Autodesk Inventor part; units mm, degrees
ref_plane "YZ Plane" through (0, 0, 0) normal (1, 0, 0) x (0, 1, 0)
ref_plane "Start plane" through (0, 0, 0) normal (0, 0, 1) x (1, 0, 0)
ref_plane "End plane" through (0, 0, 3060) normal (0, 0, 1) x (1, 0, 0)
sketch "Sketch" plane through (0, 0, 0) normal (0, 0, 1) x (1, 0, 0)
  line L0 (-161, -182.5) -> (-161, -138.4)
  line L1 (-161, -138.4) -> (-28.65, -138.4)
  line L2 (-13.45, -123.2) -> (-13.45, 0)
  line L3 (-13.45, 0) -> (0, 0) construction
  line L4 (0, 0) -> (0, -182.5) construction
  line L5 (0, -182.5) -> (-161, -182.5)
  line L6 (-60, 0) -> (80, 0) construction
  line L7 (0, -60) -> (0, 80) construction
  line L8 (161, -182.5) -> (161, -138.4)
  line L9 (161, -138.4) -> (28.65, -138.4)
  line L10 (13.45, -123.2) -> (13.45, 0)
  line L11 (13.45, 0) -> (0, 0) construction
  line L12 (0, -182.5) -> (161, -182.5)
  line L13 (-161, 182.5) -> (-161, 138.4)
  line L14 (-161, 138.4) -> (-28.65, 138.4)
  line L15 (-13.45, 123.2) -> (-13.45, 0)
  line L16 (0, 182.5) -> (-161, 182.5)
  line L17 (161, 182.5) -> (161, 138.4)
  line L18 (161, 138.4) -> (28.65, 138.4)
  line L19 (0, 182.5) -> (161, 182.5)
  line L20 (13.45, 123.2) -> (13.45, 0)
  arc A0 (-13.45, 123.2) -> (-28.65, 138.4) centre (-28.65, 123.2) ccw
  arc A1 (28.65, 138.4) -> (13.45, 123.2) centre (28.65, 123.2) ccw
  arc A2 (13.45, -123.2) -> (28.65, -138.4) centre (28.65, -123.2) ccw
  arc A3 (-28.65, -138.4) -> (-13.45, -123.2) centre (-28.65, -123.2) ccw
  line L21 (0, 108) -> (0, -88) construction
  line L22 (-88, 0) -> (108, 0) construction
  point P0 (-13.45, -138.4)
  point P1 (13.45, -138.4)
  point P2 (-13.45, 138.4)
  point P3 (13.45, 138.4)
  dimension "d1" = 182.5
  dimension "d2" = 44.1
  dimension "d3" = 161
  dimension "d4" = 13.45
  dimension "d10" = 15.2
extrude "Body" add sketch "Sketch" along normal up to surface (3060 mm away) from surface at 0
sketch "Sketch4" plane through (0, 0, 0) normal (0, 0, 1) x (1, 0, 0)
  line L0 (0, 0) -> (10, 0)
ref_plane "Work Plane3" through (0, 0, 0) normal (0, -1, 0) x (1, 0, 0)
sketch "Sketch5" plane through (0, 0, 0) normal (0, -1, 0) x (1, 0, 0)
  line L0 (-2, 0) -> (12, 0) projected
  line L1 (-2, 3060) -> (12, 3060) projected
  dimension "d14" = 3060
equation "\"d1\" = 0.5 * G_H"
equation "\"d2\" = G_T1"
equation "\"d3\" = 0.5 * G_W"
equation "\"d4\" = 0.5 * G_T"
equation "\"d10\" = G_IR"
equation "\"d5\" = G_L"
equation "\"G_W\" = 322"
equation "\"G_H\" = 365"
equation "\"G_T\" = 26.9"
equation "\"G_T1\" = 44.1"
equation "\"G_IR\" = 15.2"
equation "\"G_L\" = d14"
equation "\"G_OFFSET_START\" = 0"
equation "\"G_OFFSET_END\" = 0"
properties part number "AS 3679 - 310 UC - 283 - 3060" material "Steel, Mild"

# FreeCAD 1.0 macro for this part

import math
import FreeCAD as App
import Part
import Sketcher
from FreeCAD import Vector

doc = App.newDocument("Part")
params = doc.addObject("Spreadsheet::Sheet", "Params")
for row, (alias, value) in enumerate([
    ("sketch1_radius", "15.2 mm"),
    ("sketch1_height", "44.1 mm"),
    ("pad1_length", "3060 mm"),
], start=1):
    params.set(f"A{row}", alias)
    params.set(f"B{row}", "=" + value)
    params.setAlias(f"B{row}", alias)

body = doc.addObject("PartDesign::Body", "Body")

# Sketch on XY plane
sketch1 = doc.addObject("Sketcher::SketchObject", "Sketch")
body.addObject(sketch1)
sketch1.AttachmentSupport = (doc.XY_Plane, [""])
sketch1.MapMode = "FlatFace"
sketch1.addGeometry([
    Part.LineSegment(Vector(-161, -138.4, 0), Vector(-161, -182.5, 0)),  # 0
    Part.LineSegment(Vector(-161, -182.5, 0), Vector(161, -182.5, 0)),  # 1
    Part.LineSegment(Vector(161, -182.5, 0), Vector(161, -138.4, 0)),  # 2
    Part.LineSegment(Vector(161, -138.4, 0), Vector(28.65, -138.4, 0)),  # 3
    Part.ArcOfCircle(Part.Circle(Vector(28.65, -123.2, 0), Vector(0, 0, 1), 15.2), math.radians(180), math.radians(270)),  # 4
    Part.LineSegment(Vector(13.45, -123.2, 0), Vector(13.45, 123.2, 0)),  # 5
    Part.ArcOfCircle(Part.Circle(Vector(28.65, 123.2, 0), Vector(0, 0, 1), 15.2), math.radians(90), math.radians(180)),  # 6
    Part.LineSegment(Vector(28.65, 138.4, 0), Vector(161, 138.4, 0)),  # 7
    Part.LineSegment(Vector(161, 138.4, 0), Vector(161, 182.5, 0)),  # 8
    Part.LineSegment(Vector(161, 182.5, 0), Vector(-161, 182.5, 0)),  # 9
    Part.LineSegment(Vector(-161, 182.5, 0), Vector(-161, 138.4, 0)),  # 10
    Part.LineSegment(Vector(-161, 138.4, 0), Vector(-28.65, 138.4, 0)),  # 11
    Part.ArcOfCircle(Part.Circle(Vector(-28.65, 123.2, 0), Vector(0, 0, 1), 15.2), math.radians(0), math.radians(90)),  # 12
    Part.LineSegment(Vector(-13.45, 123.2, 0), Vector(-13.45, -123.2, 0)),  # 13
    Part.ArcOfCircle(Part.Circle(Vector(-28.65, -123.2, 0), Vector(0, 0, 1), 15.2), math.radians(-90), math.radians(0)),  # 14
    Part.LineSegment(Vector(-28.65, -138.4, 0), Vector(-161, -138.4, 0)),  # 15
], False)
sketch1.addConstraint([
    Sketcher.Constraint("Coincident", 0, 2, 1, 1),
    Sketcher.Constraint("Coincident", 1, 2, 2, 1),
    Sketcher.Constraint("Coincident", 2, 2, 3, 1),
    Sketcher.Constraint("Tangent", 3, 2, 4, 2),
    Sketcher.Constraint("Tangent", 4, 1, 5, 1),
    Sketcher.Constraint("Tangent", 5, 2, 6, 2),
    Sketcher.Constraint("Tangent", 6, 1, 7, 1),
    Sketcher.Constraint("Coincident", 7, 2, 8, 1),
    Sketcher.Constraint("Coincident", 8, 2, 9, 1),
    Sketcher.Constraint("Coincident", 9, 2, 10, 1),
    Sketcher.Constraint("Coincident", 10, 2, 11, 1),
    Sketcher.Constraint("Tangent", 11, 2, 12, 2),
    Sketcher.Constraint("Tangent", 12, 1, 13, 1),
    Sketcher.Constraint("Tangent", 13, 2, 14, 2),
    Sketcher.Constraint("Tangent", 14, 1, 15, 1),
    Sketcher.Constraint("Coincident", 15, 2, 0, 1),
    Sketcher.Constraint("Vertical", 0),
    Sketcher.Constraint("Horizontal", 1),
    Sketcher.Constraint("Vertical", 2),
    Sketcher.Constraint("Horizontal", 3),
    Sketcher.Constraint("Vertical", 5),
    Sketcher.Constraint("Horizontal", 7),
    Sketcher.Constraint("Vertical", 8),
    Sketcher.Constraint("Horizontal", 9),
    Sketcher.Constraint("Vertical", 10),
    Sketcher.Constraint("Horizontal", 11),
    Sketcher.Constraint("Vertical", 13),
    Sketcher.Constraint("Horizontal", 15),
    Sketcher.Constraint("Equal", 4, 6),
    Sketcher.Constraint("Equal", 6, 12),
    Sketcher.Constraint("Equal", 12, 14),
    Sketcher.Constraint("Symmetric", 4, 3, 12, 3, -1, 1),
    Sketcher.Constraint("Symmetric", 0, 2, 8, 2, -1, 1),
    Sketcher.Constraint("Symmetric", 7, 2, 10, 2, -2),
    Sketcher.Constraint("Symmetric", 2, 2, 15, 2, -2),
    Sketcher.Constraint("Radius", 4, 15.2),
    Sketcher.Constraint("DistanceY", 0, 2, 0, 1, 44.1),
    Sketcher.Constraint("DistanceX", 0, 2, -1, 1, 161.0),
    Sketcher.Constraint("DistanceY", 0, 2, -1, 1, 182.5),
    Sketcher.Constraint("DistanceX", -1, 1, 4, 1, 13.45),
])
sketch1.setExpression("Constraints[35]", "Params.sketch1_radius")
sketch1.setExpression("Constraints[36]", "Params.sketch1_height")
pad1 = doc.addObject("PartDesign::Pad", "Pad")
body.addObject(pad1)
pad1.Profile = sketch1
pad1.setExpression("Length", "Params.pad1_length")

doc.recompute()
